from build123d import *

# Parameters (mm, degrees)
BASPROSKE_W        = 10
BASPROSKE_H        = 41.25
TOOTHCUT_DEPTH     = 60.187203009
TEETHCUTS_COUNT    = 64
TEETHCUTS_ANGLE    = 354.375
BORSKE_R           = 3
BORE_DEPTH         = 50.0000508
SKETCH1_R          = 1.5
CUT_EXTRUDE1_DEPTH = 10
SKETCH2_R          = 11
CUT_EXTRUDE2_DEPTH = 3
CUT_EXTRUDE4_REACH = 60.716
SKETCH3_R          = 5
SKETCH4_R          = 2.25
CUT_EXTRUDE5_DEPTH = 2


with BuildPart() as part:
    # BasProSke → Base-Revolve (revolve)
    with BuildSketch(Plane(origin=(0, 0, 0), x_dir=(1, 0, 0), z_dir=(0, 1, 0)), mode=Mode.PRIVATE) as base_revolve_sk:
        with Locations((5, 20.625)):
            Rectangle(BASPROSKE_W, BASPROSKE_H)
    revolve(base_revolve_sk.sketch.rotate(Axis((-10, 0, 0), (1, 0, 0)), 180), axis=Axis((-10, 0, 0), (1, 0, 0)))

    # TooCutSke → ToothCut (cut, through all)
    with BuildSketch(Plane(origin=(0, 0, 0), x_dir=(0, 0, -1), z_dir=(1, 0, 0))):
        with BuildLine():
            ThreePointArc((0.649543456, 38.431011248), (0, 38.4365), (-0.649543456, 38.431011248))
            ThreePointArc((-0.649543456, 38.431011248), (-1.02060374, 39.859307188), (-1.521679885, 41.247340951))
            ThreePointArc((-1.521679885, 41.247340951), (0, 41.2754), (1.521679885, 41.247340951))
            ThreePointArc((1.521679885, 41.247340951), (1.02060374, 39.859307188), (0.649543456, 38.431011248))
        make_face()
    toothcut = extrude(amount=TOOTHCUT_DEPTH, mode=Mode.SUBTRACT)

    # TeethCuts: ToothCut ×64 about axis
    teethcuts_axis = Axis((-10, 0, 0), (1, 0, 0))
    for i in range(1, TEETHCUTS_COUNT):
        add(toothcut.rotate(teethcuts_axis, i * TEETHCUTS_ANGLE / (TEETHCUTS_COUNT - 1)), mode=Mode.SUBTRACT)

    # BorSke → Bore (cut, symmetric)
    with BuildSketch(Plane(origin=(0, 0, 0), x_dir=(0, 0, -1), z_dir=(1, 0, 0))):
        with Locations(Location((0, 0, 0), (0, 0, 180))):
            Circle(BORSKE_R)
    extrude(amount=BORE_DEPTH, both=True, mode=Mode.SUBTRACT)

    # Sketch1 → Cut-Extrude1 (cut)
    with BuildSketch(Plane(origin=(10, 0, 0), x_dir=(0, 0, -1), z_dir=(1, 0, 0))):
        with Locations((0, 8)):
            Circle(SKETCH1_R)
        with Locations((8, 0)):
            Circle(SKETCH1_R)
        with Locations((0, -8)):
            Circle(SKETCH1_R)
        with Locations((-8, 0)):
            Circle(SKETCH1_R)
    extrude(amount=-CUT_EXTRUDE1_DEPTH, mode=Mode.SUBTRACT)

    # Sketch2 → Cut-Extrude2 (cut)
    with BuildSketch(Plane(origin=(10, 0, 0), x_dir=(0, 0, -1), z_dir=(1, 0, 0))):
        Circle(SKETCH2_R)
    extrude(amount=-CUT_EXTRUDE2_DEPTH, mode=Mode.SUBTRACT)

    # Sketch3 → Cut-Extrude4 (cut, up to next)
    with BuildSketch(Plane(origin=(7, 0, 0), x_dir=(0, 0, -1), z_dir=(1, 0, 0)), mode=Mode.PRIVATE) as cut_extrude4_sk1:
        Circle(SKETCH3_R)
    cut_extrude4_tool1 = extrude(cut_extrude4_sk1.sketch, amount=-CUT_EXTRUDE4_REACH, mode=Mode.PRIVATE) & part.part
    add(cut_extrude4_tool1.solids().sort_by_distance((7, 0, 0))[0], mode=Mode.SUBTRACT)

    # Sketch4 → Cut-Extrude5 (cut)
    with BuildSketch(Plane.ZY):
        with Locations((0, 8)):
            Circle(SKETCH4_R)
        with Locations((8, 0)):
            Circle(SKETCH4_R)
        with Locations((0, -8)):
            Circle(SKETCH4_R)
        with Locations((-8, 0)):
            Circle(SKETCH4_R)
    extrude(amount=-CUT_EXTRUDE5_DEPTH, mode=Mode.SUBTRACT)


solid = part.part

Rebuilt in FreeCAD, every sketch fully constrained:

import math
import FreeCAD as App
import Part
import Sketcher

doc = App.newDocument("Part")
body = doc.addObject("PartDesign::Body", "Body")

sketch1 = body.newObject("Sketcher::SketchObject", "Sketch")
sketch1.AttachmentSupport = (doc.getObject("XZ_Plane"), [""])
sketch1.MapMode = "FlatFace"
sketch1.addGeometry(Part.LineSegment(App.Vector(0, -41, 0), App.Vector(0, 0, 0)), False)
sketch1.addGeometry(Part.LineSegment(App.Vector(0, 0, 0), App.Vector(10, 0, 0)), False)
sketch1.addGeometry(Part.LineSegment(App.Vector(10, 0, 0), App.Vector(10, -41, 0)), False)
sketch1.addGeometry(Part.LineSegment(App.Vector(10, -41, 0), App.Vector(0, -41, 0)), False)
sketch1.addConstraint(Sketcher.Constraint("Coincident", 0, 2, 1, 1))
sketch1.addConstraint(Sketcher.Constraint("Coincident", 1, 2, 2, 1))
sketch1.addConstraint(Sketcher.Constraint("Coincident", 2, 2, 3, 1))
sketch1.addConstraint(Sketcher.Constraint("Coincident", 3, 2, 0, 1))
sketch1.addConstraint(Sketcher.Constraint("Vertical", 0))
sketch1.addConstraint(Sketcher.Constraint("Horizontal", 1))
sketch1.addConstraint(Sketcher.Constraint("Vertical", 2))
sketch1.addConstraint(Sketcher.Constraint("Horizontal", 3))
sketch1.addConstraint(Sketcher.Constraint("Coincident", 0, 2, -1, 1))
sketch1.addConstraint(Sketcher.Constraint("DistanceX", 1, 1, 1, 2, 10.0))
sketch1.addConstraint(Sketcher.Constraint("DistanceY", 0, 1, 0, 2, 41.25))
revolution = body.newObject("PartDesign::Revolution", "Revolution")
revolution.Profile = sketch1
revolution.ReferenceAxis = (sketch1, ["H_Axis"])
revolution.Angle = 360

sketch2 = body.newObject("Sketcher::SketchObject", "Sketch001")
sketch2.AttachmentSupport = (doc.getObject("YZ_Plane"), [""])
sketch2.MapMode = "FlatFace"
sketch2.addGeometry(Part.ArcOfCircle(Part.Circle(App.Vector(0, 0, 0), App.Vector(0, 0, 1), 38.4365), math.radians(-0.968295), math.radians(0.968295)), False)
sketch2.addGeometry(Part.ArcOfCircle(Part.Circle(App.Vector(35.126311, -16.304541, 0), App.Vector(0, 0, 1), 16), math.radians(67.507382), math.radians(78.080114)), False)
sketch2.addGeometry(Part.ArcOfCircle(Part.Circle(App.Vector(-0.000001, 0, 0), App.Vector(0, 0, 1), 41.275401), math.radians(-2.112774), math.radians(2.112774)), False)
sketch2.addGeometry(Part.ArcOfCircle(Part.Circle(App.Vector(35.126311, 16.304541, 0), App.Vector(0, 0, 1), 16), math.radians(-78.080114), math.radians(-67.507382)), False)
sketch2.addConstraint(Sketcher.Constraint("Coincident", 0, 1, 1, 2))
sketch2.addConstraint(Sketcher.Constraint("Coincident", 1, 1, 2, 1))
sketch2.addConstraint(Sketcher.Constraint("Coincident", 2, 2, 3, 2))
sketch2.addConstraint(Sketcher.Constraint("Coincident", 3, 1, 0, 2))
sketch2.addConstraint(Sketcher.Constraint("Coincident", 0, 3, -1, 1))
sketch2.addConstraint(Sketcher.Constraint("Coincident", 2, 3, -1, 1))
sketch2.addConstraint(Sketcher.Constraint("Radius", 1, 16.0))
sketch2.addConstraint(Sketcher.Constraint("Radius", 3, 16.0))
sketch2.addConstraint(Sketcher.Constraint("Radius", 0, 38.4365))
sketch2.addConstraint(Sketcher.Constraint("Radius", 2, 41.275401))
sketch2.addConstraint(Sketcher.Constraint("DistanceX", 1, 3, 0, 1, 3.304701))
sketch2.addConstraint(Sketcher.Constraint("DistanceX", 3, 3, 0, 1, 3.304701))
sketch2.addConstraint(Sketcher.Constraint("DistanceX", -1, 1, 1, 3, 35.126311))
sketch2.addConstraint(Sketcher.Constraint("DistanceY", -1, 1, 3, 3, 16.304541))
pocket1 = body.newObject("PartDesign::Pocket", "Pocket")
pocket1.Profile = sketch2
pocket1.Type = "ThroughAll"
pocket1.Reversed = True
doc.recompute()

polarpattern = body.newObject("PartDesign::PolarPattern", "PolarPattern")
polarpattern.Originals = [pocket1]
polarpattern.Axis = (doc.getObject("X_Axis"), [""])
polarpattern.Angle = 360
polarpattern.Occurrences = 64
body.Tip = polarpattern

sketch3 = body.newObject("Sketcher::SketchObject", "Sketch002")
sketch3.AttachmentSupport = (doc.getObject("YZ_Plane"), [""])
sketch3.MapMode = "FlatFace"
sketch3.addGeometry(Part.Circle(App.Vector(0, 0, 0), App.Vector(0, 0, 1), 3), False)
sketch3.addConstraint(Sketcher.Constraint("Coincident", 0, 3, -1, 1))
sketch3.addConstraint(Sketcher.Constraint("Diameter", 0, 6.0))
pocket2 = body.newObject("PartDesign::Pocket", "Pocket001")
pocket2.Profile = sketch3
pocket2.Length = 100.000102
pocket2.Midplane = True

sketch4 = body.newObject("Sketcher::SketchObject", "Sketch003")
sketch4.AttachmentSupport = (doc.getObject("YZ_Plane"), [""])
sketch4.MapMode = "FlatFace"
sketch4.AttachmentOffset = App.Placement(App.Vector(0, 0, 10), App.Rotation())
sketch4.addGeometry(Part.Circle(App.Vector(8, 0, 0), App.Vector(0, 0, 1), 1.5), False)
sketch4.addGeometry(Part.Circle(App.Vector(0, -8, 0), App.Vector(0, 0, 1), 1.5), False)
sketch4.addGeometry(Part.Circle(App.Vector(-8, 0, 0), App.Vector(0, 0, 1), 1.5), False)
sketch4.addGeometry(Part.Circle(App.Vector(0, 8, 0), App.Vector(0, 0, 1), 1.5), False)
sketch4.addConstraint(Sketcher.Constraint("Equal", 0, 1))
sketch4.addConstraint(Sketcher.Constraint("Equal", 1, 2))
sketch4.addConstraint(Sketcher.Constraint("Equal", 2, 3))
sketch4.addConstraint(Sketcher.Constraint("Symmetric", 0, 3, 2, 3, -1, 1))
sketch4.addConstraint(Sketcher.Constraint("Symmetric", 1, 3, 3, 3, -1, 1))
sketch4.addConstraint(Sketcher.Constraint("PointOnObject", 0, 3, -1))
sketch4.addConstraint(Sketcher.Constraint("PointOnObject", 1, 3, -2))
sketch4.addConstraint(Sketcher.Constraint("Diameter", 0, 3.0))
sketch4.addConstraint(Sketcher.Constraint("DistanceX", -1, 1, 0, 3, 8.0))
sketch4.addConstraint(Sketcher.Constraint("DistanceY", 1, 3, -1, 1, 8.0))
pocket3 = body.newObject("PartDesign::Pocket", "Pocket002")
pocket3.Profile = sketch4
pocket3.Length = 10

sketch5 = body.newObject("Sketcher::SketchObject", "Sketch004")
sketch5.AttachmentSupport = (doc.getObject("YZ_Plane"), [""])
sketch5.MapMode = "FlatFace"
sketch5.AttachmentOffset = App.Placement(App.Vector(0, 0, 10), App.Rotation())
sketch5.addGeometry(Part.Circle(App.Vector(0, 0, 0), App.Vector(0, 0, 1), 11), False)
sketch5.addConstraint(Sketcher.Constraint("Coincident", 0, 3, -1, 1))
sketch5.addConstraint(Sketcher.Constraint("Diameter", 0, 22.0))
pocket4 = body.newObject("PartDesign::Pocket", "Pocket003")
pocket4.Profile = sketch5
pocket4.Length = 3

sketch6 = body.newObject("Sketcher::SketchObject", "Sketch005")
sketch6.AttachmentSupport = (doc.getObject("YZ_Plane"), [""])
sketch6.MapMode = "FlatFace"
sketch6.AttachmentOffset = App.Placement(App.Vector(0, 0, 7), App.Rotation())
sketch6.addGeometry(Part.Circle(App.Vector(0, 0, 0), App.Vector(0, 0, 1), 5), False)
sketch6.addConstraint(Sketcher.Constraint("Coincident", 0, 3, -1, 1))
sketch6.addConstraint(Sketcher.Constraint("Diameter", 0, 10.0))
pocket5 = body.newObject("PartDesign::Pocket", "Pocket004")
pocket5.Profile = sketch6
pocket5.Length = 7

sketch7 = body.newObject("Sketcher::SketchObject", "Sketch006")
sketch7.AttachmentSupport = (doc.getObject("YZ_Plane"), [""])
sketch7.MapMode = "FlatFace"
sketch7.addGeometry(Part.Circle(App.Vector(8, 0, 0), App.Vector(0, 0, 1), 2.2), False)
sketch7.addGeometry(Part.Circle(App.Vector(0, 8, 0), App.Vector(0, 0, 1), 2.2), False)
sketch7.addGeometry(Part.Circle(App.Vector(-8, 0, 0), App.Vector(0, 0, 1), 2.2), False)
sketch7.addGeometry(Part.Circle(App.Vector(0, -8, 0), App.Vector(0, 0, 1), 2.2), False)
sketch7.addConstraint(Sketcher.Constraint("Equal", 0, 1))
sketch7.addConstraint(Sketcher.Constraint("Equal", 1, 2))
sketch7.addConstraint(Sketcher.Constraint("Equal", 2, 3))
sketch7.addConstraint(Sketcher.Constraint("Symmetric", 0, 3, 2, 3, -1, 1))
sketch7.addConstraint(Sketcher.Constraint("Symmetric", 1, 3, 3, 3, -1, 1))
sketch7.addConstraint(Sketcher.Constraint("PointOnObject", 0, 3, -1))
sketch7.addConstraint(Sketcher.Constraint("PointOnObject", 1, 3, -2))
sketch7.addConstraint(Sketcher.Constraint("Diameter", 0, 4.5))
sketch7.addConstraint(Sketcher.Constraint("DistanceX", -1, 1, 0, 3, 8.0))
sketch7.addConstraint(Sketcher.Constraint("DistanceY", -1, 1, 1, 3, 8.0))
pocket6 = body.newObject("PartDesign::Pocket", "Pocket005")
pocket6.Profile = sketch7
pocket6.Length = 2
pocket6.Reversed = True

doc.recompute()
